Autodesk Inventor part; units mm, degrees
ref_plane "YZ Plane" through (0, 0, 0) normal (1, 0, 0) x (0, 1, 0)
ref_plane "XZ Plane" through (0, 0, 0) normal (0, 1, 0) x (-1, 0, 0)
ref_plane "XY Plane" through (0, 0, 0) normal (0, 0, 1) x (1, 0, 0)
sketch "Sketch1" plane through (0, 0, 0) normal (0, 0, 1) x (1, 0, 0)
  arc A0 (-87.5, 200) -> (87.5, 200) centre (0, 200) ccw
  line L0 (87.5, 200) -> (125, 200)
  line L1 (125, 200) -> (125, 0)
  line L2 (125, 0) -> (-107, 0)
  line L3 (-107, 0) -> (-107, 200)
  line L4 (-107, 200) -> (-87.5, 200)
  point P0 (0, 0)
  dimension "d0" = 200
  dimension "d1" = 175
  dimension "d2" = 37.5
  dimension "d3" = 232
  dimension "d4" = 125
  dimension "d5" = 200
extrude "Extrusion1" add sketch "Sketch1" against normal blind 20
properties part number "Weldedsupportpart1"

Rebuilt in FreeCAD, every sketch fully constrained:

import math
import FreeCAD as App
import Part
import Sketcher

V = App.Vector
Q = App.Units.Quantity

doc = App.newDocument("Part")
params = doc.addObject("Spreadsheet::Sheet", "Params")
for row, (alias, value) in enumerate([
    ("sketch1_radius", "87.5 mm"),
    ("sketch1_width", "232 mm"),
    ("sketch1_height", "200 mm"),
    ("sketch1_width2", "37.5 mm"),
    ("pad1_length", "20 mm"),
], start=1):
    params.set(f"A{row}", alias)
    params.set(f"B{row}", "=" + value)
    params.setAlias(f"B{row}", alias)

body = doc.addObject("PartDesign::Body", "Body")

sketch1 = doc.addObject("Sketcher::SketchObject", "Sketch")
body.addObject(sketch1)
sketch1.AttachmentSupport = (doc.XY_Plane, [""])
sketch1.MapMode = "FlatFace"
sketch1.addGeometry(Part.ArcOfCircle(Part.Circle(V(0, 200, 0), V(0, 0, 1), 88), math.radians(180), math.radians(360)), False)
sketch1.addGeometry(Part.LineSegment(V(-88, 200, 0), V(-107, 200, 0)), False)
sketch1.addGeometry(Part.LineSegment(V(-107, 200, 0), V(-107, 0, 0)), False)
sketch1.addGeometry(Part.LineSegment(V(-107, 0, 0), V(125, 0, 0)), False)
sketch1.addGeometry(Part.LineSegment(V(125, 0, 0), V(125, 200, 0)), False)
sketch1.addGeometry(Part.LineSegment(V(125, 200, 0), V(88, 200, 0)), False)
sketch1.addConstraint(Sketcher.Constraint("Coincident", 0, 1, 1, 1))
sketch1.addConstraint(Sketcher.Constraint("Coincident", 1, 2, 2, 1))
sketch1.addConstraint(Sketcher.Constraint("Coincident", 2, 2, 3, 1))
sketch1.addConstraint(Sketcher.Constraint("Coincident", 3, 2, 4, 1))
sketch1.addConstraint(Sketcher.Constraint("Coincident", 4, 2, 5, 1))
sketch1.addConstraint(Sketcher.Constraint("Coincident", 5, 2, 0, 2))
sketch1.addConstraint(Sketcher.Constraint("Horizontal", 1))
sketch1.addConstraint(Sketcher.Constraint("Vertical", 2))
sketch1.addConstraint(Sketcher.Constraint("Horizontal", 3))
sketch1.addConstraint(Sketcher.Constraint("Vertical", 4))
sketch1.addConstraint(Sketcher.Constraint("Horizontal", 5))
sketch1.addConstraint(Sketcher.Constraint("Symmetric", 0, 1, 5, 2, -2))
sketch1.addConstraint(Sketcher.Constraint("PointOnObject", 2, 2, -1))
sketch1.addConstraint(Sketcher.Constraint("Radius", 0, Q("87.5 mm")))
sketch1.addConstraint(Sketcher.Constraint("DistanceX", 3, 1, 3, 2, Q("232 mm")))
sketch1.addConstraint(Sketcher.Constraint("DistanceY", 2, 2, 2, 1, Q("200 mm")))
sketch1.addConstraint(Sketcher.Constraint("DistanceX", 5, 2, 5, 1, Q("37.5 mm")))
sketch1.addConstraint(Sketcher.Constraint("DistanceY", -1, 1, 0, 3, Q("200 mm")))
sketch1.setExpression("Constraints[13]", "Params.sketch1_radius")
sketch1.setExpression("Constraints[14]", "Params.sketch1_width")
sketch1.setExpression("Constraints[15]", "Params.sketch1_height")
sketch1.setExpression("Constraints[16]", "Params.sketch1_width2")
pad1 = doc.addObject("PartDesign::Pad", "Pad")
body.addObject(pad1)
pad1.Profile = sketch1
pad1.setExpression("Length", "Params.pad1_length")
pad1.Reversed = True

doc.recompute()
